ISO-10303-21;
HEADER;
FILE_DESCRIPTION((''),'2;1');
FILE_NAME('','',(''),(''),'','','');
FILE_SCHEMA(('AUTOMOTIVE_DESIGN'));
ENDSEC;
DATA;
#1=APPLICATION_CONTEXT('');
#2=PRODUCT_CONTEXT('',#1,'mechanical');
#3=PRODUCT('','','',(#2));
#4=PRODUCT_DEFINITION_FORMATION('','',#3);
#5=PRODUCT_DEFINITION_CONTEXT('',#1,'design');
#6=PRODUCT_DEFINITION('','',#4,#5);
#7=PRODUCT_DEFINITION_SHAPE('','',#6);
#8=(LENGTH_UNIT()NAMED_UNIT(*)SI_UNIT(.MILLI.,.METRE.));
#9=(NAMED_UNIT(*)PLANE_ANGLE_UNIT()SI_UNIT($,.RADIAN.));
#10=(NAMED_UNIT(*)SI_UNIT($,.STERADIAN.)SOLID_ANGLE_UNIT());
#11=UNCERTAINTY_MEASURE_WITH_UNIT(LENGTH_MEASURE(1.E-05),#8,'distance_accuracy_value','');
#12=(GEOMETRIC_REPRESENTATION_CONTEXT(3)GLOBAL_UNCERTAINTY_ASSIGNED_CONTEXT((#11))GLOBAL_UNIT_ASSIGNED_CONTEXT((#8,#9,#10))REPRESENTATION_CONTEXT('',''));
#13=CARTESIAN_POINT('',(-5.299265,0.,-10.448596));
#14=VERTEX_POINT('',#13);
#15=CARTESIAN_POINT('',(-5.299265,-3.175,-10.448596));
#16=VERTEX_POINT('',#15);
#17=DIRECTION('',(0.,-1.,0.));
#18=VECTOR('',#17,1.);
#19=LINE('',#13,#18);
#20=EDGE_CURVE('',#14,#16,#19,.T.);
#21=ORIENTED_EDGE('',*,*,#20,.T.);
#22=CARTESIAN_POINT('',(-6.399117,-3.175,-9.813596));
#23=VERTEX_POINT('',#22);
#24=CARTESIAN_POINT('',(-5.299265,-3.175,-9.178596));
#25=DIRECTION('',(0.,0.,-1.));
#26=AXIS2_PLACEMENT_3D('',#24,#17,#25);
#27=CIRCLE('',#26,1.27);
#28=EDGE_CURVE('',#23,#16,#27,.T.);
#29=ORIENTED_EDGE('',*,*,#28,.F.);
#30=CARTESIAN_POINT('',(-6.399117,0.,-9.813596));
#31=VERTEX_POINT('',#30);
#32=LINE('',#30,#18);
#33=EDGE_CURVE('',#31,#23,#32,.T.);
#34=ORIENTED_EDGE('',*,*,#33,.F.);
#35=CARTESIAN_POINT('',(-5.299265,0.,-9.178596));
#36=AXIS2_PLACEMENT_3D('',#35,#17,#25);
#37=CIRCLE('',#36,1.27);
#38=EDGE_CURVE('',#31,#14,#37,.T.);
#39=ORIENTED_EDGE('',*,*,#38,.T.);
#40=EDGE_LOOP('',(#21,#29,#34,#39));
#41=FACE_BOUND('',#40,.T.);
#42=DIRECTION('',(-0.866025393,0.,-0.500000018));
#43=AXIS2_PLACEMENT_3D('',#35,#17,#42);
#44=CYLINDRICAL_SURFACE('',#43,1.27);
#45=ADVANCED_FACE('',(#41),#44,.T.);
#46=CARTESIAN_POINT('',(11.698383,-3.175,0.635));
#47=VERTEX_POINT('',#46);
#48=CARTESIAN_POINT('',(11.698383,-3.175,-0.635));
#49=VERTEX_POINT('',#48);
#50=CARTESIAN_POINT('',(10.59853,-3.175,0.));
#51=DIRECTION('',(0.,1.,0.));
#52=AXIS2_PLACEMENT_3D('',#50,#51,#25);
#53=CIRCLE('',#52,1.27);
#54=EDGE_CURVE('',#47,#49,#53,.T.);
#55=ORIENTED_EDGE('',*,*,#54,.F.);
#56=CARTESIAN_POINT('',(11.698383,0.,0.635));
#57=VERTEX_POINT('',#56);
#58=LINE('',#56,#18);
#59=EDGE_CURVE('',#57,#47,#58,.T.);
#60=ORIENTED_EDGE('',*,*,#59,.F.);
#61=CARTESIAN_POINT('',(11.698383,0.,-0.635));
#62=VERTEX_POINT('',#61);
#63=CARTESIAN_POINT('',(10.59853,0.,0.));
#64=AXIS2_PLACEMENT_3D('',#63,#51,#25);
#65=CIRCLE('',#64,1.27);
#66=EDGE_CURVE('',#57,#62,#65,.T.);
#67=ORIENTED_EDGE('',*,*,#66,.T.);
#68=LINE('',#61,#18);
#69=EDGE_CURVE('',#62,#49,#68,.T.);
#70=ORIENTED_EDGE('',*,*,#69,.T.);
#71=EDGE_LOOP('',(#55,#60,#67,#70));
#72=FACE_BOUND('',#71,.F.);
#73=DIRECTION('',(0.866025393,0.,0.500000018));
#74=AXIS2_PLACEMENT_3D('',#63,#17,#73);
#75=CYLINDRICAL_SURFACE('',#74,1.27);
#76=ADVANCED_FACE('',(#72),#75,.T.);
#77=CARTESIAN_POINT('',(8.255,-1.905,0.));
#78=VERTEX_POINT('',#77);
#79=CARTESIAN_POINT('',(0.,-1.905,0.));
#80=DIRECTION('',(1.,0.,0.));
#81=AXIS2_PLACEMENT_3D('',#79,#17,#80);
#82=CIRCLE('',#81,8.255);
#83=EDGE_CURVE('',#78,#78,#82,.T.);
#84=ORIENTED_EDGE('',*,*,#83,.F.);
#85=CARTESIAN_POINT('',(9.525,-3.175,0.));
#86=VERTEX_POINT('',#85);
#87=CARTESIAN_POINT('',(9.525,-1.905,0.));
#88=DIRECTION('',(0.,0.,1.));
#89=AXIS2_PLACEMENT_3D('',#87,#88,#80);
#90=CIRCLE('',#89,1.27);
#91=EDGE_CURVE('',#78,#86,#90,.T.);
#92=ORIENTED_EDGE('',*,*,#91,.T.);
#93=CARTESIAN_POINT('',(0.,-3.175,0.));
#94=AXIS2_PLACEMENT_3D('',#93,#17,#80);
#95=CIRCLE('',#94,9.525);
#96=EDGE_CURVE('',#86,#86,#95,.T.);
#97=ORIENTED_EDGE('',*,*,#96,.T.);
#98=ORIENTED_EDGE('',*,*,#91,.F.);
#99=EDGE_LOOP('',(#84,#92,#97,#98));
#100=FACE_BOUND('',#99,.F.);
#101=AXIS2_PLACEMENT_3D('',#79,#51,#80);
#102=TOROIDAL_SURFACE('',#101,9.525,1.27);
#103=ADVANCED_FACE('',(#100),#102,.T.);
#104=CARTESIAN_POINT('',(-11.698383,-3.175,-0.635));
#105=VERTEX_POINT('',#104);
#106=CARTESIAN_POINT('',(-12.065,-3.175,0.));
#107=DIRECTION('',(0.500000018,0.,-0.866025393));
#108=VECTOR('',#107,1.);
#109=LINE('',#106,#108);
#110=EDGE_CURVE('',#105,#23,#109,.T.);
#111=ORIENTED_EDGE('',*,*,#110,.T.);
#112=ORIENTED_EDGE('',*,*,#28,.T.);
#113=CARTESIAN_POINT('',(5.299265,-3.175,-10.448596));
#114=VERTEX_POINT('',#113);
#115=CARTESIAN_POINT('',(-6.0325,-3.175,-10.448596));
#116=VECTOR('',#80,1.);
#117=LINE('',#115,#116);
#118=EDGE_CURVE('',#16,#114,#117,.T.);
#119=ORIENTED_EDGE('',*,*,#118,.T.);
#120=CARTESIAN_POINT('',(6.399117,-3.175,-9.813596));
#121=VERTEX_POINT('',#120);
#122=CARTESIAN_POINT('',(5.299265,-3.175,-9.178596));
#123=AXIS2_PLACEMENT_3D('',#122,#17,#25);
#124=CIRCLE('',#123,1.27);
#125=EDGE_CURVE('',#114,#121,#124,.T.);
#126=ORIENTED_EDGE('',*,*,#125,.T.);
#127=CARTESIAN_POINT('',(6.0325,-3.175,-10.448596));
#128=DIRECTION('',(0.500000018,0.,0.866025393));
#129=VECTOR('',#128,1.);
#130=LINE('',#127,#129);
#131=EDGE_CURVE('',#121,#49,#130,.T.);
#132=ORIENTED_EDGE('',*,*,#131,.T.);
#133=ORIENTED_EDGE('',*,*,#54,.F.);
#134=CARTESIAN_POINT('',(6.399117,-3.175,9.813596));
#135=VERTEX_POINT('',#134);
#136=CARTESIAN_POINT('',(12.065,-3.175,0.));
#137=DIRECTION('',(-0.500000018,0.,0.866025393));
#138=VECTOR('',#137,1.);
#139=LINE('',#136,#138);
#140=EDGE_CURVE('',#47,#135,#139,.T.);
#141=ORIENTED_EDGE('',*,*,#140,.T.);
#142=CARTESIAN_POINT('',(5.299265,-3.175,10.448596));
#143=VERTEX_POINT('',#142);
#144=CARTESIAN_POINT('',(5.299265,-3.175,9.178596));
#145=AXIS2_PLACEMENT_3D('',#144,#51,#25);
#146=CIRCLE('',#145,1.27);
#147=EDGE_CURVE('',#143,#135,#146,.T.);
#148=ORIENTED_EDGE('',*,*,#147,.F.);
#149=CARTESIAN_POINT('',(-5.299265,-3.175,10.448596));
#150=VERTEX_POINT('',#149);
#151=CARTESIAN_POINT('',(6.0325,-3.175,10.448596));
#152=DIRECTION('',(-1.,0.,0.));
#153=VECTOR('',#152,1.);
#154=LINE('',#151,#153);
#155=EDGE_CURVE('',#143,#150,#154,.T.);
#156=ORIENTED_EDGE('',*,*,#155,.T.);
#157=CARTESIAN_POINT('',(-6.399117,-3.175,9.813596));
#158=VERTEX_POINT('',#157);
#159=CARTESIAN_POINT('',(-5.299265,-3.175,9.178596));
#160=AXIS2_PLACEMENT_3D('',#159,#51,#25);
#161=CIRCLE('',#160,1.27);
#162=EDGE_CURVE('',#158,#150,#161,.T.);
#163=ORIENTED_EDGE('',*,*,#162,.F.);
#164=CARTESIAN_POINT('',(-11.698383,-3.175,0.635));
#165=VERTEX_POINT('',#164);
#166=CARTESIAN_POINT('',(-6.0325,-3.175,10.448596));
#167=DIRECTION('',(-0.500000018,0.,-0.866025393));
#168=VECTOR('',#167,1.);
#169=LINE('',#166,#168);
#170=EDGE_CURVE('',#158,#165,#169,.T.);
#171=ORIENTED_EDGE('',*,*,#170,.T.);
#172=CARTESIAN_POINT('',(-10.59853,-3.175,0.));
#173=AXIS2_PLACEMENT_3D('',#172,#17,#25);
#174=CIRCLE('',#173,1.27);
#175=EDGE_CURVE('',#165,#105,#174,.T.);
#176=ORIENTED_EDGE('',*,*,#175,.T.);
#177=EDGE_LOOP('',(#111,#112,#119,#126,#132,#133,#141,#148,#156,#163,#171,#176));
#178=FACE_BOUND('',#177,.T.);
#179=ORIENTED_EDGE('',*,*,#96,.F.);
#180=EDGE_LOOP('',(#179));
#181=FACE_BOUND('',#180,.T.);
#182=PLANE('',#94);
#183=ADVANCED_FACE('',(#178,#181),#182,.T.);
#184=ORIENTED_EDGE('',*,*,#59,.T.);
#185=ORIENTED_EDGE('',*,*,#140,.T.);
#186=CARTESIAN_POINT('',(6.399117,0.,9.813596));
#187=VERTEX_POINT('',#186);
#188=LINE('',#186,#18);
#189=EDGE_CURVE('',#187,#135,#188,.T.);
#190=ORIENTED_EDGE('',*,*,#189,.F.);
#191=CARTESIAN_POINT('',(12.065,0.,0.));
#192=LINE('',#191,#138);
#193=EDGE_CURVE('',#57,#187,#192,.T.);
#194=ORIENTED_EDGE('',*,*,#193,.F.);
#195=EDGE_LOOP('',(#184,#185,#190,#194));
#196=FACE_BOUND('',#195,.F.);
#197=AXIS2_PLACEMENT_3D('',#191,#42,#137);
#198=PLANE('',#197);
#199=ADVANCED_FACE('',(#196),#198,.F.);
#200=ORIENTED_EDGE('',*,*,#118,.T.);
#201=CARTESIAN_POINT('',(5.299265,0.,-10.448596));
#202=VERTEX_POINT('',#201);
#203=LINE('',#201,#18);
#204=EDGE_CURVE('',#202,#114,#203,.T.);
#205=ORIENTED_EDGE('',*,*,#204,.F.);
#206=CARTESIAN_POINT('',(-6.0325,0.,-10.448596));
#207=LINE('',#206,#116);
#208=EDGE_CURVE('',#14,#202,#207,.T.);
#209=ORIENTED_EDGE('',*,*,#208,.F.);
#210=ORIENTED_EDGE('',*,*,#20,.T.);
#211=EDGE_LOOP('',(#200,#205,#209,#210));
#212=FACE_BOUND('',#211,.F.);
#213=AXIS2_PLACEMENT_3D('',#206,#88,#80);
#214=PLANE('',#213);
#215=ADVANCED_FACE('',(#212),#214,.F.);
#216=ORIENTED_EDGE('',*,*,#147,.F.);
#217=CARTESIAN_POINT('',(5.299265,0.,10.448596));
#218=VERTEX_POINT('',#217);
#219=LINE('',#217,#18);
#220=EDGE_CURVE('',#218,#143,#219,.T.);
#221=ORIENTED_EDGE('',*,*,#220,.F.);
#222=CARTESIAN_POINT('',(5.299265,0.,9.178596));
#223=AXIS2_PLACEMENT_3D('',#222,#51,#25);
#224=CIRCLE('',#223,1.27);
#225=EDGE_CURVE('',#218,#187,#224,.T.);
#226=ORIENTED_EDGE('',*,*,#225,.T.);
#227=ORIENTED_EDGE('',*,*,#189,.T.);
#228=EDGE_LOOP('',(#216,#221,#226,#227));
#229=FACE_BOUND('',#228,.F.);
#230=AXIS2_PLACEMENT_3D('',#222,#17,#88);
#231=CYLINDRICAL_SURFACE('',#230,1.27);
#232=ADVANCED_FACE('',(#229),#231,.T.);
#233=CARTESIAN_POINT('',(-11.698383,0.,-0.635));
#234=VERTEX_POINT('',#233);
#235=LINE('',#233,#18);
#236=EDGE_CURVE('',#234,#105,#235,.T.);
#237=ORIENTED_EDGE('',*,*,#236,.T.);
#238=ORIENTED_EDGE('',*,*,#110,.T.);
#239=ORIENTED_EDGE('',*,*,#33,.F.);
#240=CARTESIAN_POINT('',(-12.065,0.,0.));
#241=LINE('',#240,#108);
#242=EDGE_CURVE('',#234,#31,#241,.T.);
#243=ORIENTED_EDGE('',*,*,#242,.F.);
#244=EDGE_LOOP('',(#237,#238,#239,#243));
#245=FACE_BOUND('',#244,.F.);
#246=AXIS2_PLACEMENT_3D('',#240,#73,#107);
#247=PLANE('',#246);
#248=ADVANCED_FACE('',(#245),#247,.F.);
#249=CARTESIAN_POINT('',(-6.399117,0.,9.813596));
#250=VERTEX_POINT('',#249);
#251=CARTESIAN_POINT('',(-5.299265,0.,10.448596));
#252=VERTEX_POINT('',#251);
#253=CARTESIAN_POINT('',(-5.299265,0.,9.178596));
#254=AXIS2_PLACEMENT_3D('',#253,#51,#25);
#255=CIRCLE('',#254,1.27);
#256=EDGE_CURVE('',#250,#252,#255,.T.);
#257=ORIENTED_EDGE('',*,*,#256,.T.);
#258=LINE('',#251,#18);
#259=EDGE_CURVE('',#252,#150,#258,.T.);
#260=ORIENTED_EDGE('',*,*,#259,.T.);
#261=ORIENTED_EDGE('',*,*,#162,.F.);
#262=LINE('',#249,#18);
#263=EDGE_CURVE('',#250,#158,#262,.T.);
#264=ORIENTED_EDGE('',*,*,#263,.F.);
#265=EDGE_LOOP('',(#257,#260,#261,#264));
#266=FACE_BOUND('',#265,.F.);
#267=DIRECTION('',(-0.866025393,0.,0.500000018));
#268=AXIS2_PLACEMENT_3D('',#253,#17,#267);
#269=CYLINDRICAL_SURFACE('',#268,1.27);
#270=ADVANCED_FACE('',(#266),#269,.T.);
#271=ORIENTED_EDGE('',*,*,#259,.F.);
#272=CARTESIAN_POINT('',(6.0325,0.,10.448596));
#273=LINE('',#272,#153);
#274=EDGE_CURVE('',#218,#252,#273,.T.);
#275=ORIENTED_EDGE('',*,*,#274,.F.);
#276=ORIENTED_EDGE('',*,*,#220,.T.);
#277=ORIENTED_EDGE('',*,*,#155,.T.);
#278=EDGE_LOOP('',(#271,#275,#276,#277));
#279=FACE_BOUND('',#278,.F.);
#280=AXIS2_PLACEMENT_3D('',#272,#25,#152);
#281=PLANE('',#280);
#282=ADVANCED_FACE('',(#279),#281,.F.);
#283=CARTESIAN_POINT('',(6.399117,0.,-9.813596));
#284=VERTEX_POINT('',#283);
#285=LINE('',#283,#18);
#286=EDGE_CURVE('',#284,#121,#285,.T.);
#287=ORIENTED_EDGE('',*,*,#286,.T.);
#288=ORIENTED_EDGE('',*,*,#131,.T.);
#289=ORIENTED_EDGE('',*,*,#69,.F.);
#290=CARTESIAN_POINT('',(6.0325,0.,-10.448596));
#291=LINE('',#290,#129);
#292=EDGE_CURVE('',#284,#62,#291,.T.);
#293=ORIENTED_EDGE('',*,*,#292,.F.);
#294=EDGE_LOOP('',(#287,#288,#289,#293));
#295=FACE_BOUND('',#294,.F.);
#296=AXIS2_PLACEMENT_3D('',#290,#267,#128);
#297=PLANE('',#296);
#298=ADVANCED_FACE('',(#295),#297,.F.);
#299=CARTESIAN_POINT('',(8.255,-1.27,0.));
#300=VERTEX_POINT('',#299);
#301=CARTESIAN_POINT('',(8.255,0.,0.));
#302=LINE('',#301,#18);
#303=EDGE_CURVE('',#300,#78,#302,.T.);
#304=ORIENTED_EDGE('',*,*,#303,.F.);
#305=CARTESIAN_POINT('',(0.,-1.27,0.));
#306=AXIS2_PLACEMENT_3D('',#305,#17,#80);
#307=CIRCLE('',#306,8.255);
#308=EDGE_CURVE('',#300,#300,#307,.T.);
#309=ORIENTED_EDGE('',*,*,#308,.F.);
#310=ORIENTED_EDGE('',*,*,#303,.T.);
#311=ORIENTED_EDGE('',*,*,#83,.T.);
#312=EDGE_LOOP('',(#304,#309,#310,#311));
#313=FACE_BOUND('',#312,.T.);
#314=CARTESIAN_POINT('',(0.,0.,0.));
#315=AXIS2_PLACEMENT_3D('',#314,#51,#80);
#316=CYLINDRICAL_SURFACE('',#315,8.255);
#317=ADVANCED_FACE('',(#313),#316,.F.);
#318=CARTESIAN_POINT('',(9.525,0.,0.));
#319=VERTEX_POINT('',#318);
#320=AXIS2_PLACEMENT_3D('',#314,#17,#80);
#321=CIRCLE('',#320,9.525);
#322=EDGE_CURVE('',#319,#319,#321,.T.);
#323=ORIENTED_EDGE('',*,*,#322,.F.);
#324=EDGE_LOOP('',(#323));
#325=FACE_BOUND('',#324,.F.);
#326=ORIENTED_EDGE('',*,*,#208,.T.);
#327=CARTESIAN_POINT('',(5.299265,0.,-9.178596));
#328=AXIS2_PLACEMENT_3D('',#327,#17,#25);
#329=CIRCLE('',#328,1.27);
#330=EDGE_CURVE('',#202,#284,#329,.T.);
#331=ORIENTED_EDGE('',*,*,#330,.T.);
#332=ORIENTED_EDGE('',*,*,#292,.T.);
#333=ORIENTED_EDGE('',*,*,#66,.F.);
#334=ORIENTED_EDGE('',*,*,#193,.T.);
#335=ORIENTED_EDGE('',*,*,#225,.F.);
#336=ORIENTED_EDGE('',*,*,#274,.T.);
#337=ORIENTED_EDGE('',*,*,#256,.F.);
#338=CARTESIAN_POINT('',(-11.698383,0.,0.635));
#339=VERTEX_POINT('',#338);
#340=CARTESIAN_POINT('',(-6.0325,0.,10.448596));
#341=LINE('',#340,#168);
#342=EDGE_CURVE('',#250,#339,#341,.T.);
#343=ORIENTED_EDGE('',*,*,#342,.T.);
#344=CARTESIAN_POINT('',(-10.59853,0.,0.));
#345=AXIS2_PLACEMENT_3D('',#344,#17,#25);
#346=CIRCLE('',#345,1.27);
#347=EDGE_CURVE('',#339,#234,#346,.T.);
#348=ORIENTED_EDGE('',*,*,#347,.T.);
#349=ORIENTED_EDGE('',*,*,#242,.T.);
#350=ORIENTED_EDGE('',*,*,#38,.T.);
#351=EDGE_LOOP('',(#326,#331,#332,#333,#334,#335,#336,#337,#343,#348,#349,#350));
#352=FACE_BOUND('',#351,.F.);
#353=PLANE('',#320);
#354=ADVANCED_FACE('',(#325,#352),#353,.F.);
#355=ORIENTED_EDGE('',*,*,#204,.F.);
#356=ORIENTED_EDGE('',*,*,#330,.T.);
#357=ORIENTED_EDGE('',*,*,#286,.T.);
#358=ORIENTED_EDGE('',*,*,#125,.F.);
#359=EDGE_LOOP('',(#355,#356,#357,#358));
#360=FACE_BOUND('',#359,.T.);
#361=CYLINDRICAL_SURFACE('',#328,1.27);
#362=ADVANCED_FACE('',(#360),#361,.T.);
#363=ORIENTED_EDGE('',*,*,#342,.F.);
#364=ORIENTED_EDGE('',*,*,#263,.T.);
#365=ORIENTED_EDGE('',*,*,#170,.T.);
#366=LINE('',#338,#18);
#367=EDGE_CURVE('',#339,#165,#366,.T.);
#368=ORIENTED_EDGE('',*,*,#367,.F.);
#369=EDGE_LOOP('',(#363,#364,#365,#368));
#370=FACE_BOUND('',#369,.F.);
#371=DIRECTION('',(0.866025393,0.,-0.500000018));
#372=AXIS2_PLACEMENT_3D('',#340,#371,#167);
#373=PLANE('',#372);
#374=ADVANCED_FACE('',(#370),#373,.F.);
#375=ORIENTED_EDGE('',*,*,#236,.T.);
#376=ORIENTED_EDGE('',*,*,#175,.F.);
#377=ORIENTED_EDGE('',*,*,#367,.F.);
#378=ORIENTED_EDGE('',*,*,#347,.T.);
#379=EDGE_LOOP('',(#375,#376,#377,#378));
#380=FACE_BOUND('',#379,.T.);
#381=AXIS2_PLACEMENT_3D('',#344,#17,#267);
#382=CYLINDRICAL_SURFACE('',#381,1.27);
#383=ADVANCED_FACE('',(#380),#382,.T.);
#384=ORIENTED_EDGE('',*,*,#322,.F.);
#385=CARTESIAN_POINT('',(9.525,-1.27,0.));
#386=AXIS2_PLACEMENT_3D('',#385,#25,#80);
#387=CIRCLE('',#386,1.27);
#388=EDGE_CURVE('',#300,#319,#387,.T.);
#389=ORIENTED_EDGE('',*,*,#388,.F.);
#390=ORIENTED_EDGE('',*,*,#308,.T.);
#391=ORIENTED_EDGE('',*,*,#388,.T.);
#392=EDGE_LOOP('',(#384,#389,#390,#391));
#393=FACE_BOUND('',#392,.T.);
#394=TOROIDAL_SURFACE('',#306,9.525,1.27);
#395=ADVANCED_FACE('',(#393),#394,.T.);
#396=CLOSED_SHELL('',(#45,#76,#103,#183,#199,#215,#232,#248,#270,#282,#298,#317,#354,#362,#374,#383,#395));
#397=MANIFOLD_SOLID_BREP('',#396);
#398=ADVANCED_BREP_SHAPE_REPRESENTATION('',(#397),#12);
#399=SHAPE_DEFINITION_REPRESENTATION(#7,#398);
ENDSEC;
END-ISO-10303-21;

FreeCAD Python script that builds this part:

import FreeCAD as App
import Part
import Sketcher
Q = App.Units.Quantity


def edges_at(feature, points):
    """Names of the edges that pass closest to the given points."""
    edges = feature.Shape.Edges
    near = lambda p: min(range(len(edges)), key=lambda i: edges[i].distToShape(Part.Vertex(*p))[0])
    return sorted({f"Edge{near(p) + 1}" for p in points})

doc = App.newDocument("Part")
body = doc.addObject("PartDesign::Body", "Body")

sketch1 = body.newObject("Sketcher::SketchObject", "Sketch")
sketch1.AttachmentSupport = (doc.getObject("XZ_Plane"), [""])
sketch1.MapMode = "FlatFace"
sketch1.addGeometry(Part.LineSegment(App.Vector(-6.0325, 10.448596, 0), App.Vector(-12.065, 0, 0)), False)
sketch1.addGeometry(Part.LineSegment(App.Vector(-12.065, 0, 0), App.Vector(-6.0325, -10.448596, 0)), False)
sketch1.addGeometry(Part.LineSegment(App.Vector(-6.0325, -10.448596, 0), App.Vector(6.0325, -10.448596, 0)), False)
sketch1.addGeometry(Part.LineSegment(App.Vector(6.0325, -10.448596, 0), App.Vector(12.065, 0, 0)), False)
sketch1.addGeometry(Part.LineSegment(App.Vector(12.065, 0, 0), App.Vector(6.0325, 10.448596, 0)), False)
sketch1.addGeometry(Part.LineSegment(App.Vector(6.0325, 10.448596, 0), App.Vector(-6.0325, 10.448596, 0)), False)
sketch1.addGeometry(Part.Circle(App.Vector(0, 0, 0), App.Vector(0, 0, 1), 8.255), False)
sketch1.addConstraint(Sketcher.Constraint("Coincident", 0, 2, 1, 1))
sketch1.addConstraint(Sketcher.Constraint("Coincident", 1, 2, 2, 1))
sketch1.addConstraint(Sketcher.Constraint("Coincident", 2, 2, 3, 1))
sketch1.addConstraint(Sketcher.Constraint("Coincident", 3, 2, 4, 1))
sketch1.addConstraint(Sketcher.Constraint("Coincident", 4, 2, 5, 1))
sketch1.addConstraint(Sketcher.Constraint("Coincident", 5, 2, 0, 1))
sketch1.addConstraint(Sketcher.Constraint("Horizontal", 2))
sketch1.addConstraint(Sketcher.Constraint("Horizontal", 5))
sketch1.addConstraint(Sketcher.Constraint("Coincident", 6, 3, -1, 1))
sketch1.addConstraint(Sketcher.Constraint("Symmetric", 0, 2, 3, 2, -1, 1))
sketch1.addConstraint(Sketcher.Constraint("Symmetric", 1, 2, 4, 2, -1, 1))
sketch1.addConstraint(Sketcher.Constraint("PointOnObject", 0, 2, -1))
sketch1.addConstraint(Sketcher.Constraint("Parallel", 0, 3))
sketch1.addConstraint(Sketcher.Constraint("Vertical", 2, 2, 4, 2))
sketch1.addConstraint(Sketcher.Constraint("Diameter", 6, Q("0.65 in")))
sketch1.addConstraint(Sketcher.Constraint("Angle", 0, Q("-120.000001 deg")))
sketch1.addConstraint(Sketcher.Constraint("DistanceX", 2, 1, 2, 2, Q("0.475 in")))
sketch1.addConstraint(Sketcher.Constraint("DistanceX", 0, 2, 3, 2, Q("0.95 in")))
pad1 = body.newObject("PartDesign::Pad", "Pad")
pad1.Profile = sketch1
pad1.Length = Q("0.125 in")
doc.recompute()

fillet = body.newObject("PartDesign::Fillet", "Fillet")
fillet.Base = (pad1, edges_at(pad1, [
    (-8.255, -3.175, 0),
    (-8.255, 0, 0),
    (6.032, -1.587, -10.449),
    (-6.032, -1.587, -10.449),
    (-12.065, -1.587, 0),
    (12.065, -1.587, 0),
    (6.032, -1.587, 10.449),
    (-6.032, -1.587, 10.449),
]))
fillet.Radius = Q("0.05 in")

doc.recompute()
